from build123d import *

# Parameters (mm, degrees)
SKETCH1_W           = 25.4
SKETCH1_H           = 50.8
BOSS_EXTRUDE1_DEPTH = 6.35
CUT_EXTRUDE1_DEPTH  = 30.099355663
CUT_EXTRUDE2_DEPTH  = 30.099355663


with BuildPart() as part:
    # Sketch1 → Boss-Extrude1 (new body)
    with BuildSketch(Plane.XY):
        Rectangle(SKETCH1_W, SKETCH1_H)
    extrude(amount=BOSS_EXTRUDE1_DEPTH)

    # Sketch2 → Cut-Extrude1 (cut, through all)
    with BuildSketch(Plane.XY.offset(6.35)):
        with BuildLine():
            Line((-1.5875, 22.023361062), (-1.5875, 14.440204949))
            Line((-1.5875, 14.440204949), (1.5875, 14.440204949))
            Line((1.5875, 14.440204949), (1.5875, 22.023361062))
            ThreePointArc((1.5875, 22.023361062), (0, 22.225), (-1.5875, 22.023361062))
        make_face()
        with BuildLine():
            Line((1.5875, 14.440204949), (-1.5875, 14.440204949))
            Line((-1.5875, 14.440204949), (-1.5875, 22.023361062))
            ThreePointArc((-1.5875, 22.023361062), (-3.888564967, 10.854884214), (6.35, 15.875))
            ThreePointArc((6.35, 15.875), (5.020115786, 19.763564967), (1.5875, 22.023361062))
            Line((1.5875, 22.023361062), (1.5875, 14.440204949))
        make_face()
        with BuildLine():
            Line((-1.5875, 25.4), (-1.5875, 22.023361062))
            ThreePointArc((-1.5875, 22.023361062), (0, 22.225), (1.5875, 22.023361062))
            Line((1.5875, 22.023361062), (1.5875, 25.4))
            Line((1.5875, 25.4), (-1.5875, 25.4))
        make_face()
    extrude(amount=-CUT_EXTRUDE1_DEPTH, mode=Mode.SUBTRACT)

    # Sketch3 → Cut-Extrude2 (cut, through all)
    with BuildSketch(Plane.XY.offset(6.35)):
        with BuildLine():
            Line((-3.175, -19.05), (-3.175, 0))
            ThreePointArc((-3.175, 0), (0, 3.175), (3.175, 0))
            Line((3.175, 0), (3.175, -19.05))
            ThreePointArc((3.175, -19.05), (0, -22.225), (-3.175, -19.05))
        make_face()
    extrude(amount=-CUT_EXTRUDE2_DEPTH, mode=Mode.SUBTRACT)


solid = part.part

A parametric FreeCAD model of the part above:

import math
import FreeCAD as App
import Part
import Sketcher
Q = App.Units.Quantity

doc = App.newDocument("Part")
body = doc.addObject("PartDesign::Body", "Body")

# Sketch on XY plane
sketch1 = body.newObject("Sketcher::SketchObject", "Sketch")
sketch1.AttachmentSupport = (doc.getObject("XY_Plane"), [""])
sketch1.MapMode = "FlatFace"
sketch1.addGeometry(Part.LineSegment(App.Vector(-12.7, 25.4, 0), App.Vector(-12.7, -25.4, 0)), False)
sketch1.addGeometry(Part.LineSegment(App.Vector(-12.7, -25.4, 0), App.Vector(12.7, -25.4, 0)), False)
sketch1.addGeometry(Part.LineSegment(App.Vector(12.7, -25.4, 0), App.Vector(12.7, 25.4, 0)), False)
sketch1.addGeometry(Part.LineSegment(App.Vector(12.7, 25.4, 0), App.Vector(-12.7, 25.4, 0)), False)
sketch1.addConstraint(Sketcher.Constraint("Coincident", 0, 2, 1, 1))
sketch1.addConstraint(Sketcher.Constraint("Coincident", 1, 2, 2, 1))
sketch1.addConstraint(Sketcher.Constraint("Coincident", 2, 2, 3, 1))
sketch1.addConstraint(Sketcher.Constraint("Coincident", 3, 2, 0, 1))
sketch1.addConstraint(Sketcher.Constraint("Vertical", 0))
sketch1.addConstraint(Sketcher.Constraint("Horizontal", 1))
sketch1.addConstraint(Sketcher.Constraint("Vertical", 2))
sketch1.addConstraint(Sketcher.Constraint("Horizontal", 3))
sketch1.addConstraint(Sketcher.Constraint("Symmetric", 0, 2, 2, 2, -1, 1))
sketch1.addConstraint(Sketcher.Constraint("DistanceX", 1, 1, 1, 2, Q("1 in")))
sketch1.addConstraint(Sketcher.Constraint("DistanceY", 0, 2, 0, 1, Q("2 in")))
pad1 = body.newObject("PartDesign::Pad", "Pad")
pad1.Profile = sketch1
pad1.Length = Q("0.25 in")

# Sketch on XY plane
sketch2 = body.newObject("Sketcher::SketchObject", "Sketch001")
sketch2.AttachmentSupport = (doc.getObject("XY_Plane"), [""])
sketch2.MapMode = "FlatFace"
sketch2.AttachmentOffset = App.Placement(App.Vector(0, 0, 0.25 * 25.4), App.Rotation())
sketch2.addGeometry(Part.ArcOfCircle(Part.Circle(App.Vector(0, 15.875, 0), App.Vector(0, 0, 1), 6.35), math.radians(104.477512), math.radians(360)), False)
sketch2.addGeometry(Part.ArcOfCircle(Part.Circle(App.Vector(0, 15.875, 0), App.Vector(0, 0, 1), 6.35), math.radians(0), math.radians(75.522488)), False)
sketch2.addGeometry(Part.LineSegment(App.Vector(1.5875, 22.023361, 0), App.Vector(1.5875, 25.4, 0)), False)
sketch2.addGeometry(Part.LineSegment(App.Vector(1.5875, 25.4, 0), App.Vector(-1.5875, 25.4, 0)), False)
sketch2.addGeometry(Part.LineSegment(App.Vector(-1.5875, 25.4, 0), App.Vector(-1.5875, 22.023361, 0)), False)
sketch2.addConstraint(Sketcher.Constraint("Tangent", 0, 2, 1, 1))
sketch2.addConstraint(Sketcher.Constraint("Coincident", 1, 2, 2, 1))
sketch2.addConstraint(Sketcher.Constraint("Coincident", 2, 2, 3, 1))
sketch2.addConstraint(Sketcher.Constraint("Coincident", 3, 2, 4, 1))
sketch2.addConstraint(Sketcher.Constraint("Coincident", 4, 2, 0, 1))
sketch2.addConstraint(Sketcher.Constraint("Vertical", 2))
sketch2.addConstraint(Sketcher.Constraint("Horizontal", 3))
sketch2.addConstraint(Sketcher.Constraint("Vertical", 4))
sketch2.addConstraint(Sketcher.Constraint("Equal", 0, 1))
sketch2.addConstraint(Sketcher.Constraint("Symmetric", 1, 2, 4, 2, -2))
sketch2.addConstraint(Sketcher.Constraint("Horizontal", 1, 3, 0, 2))
sketch2.addConstraint(Sketcher.Constraint("Radius", 0, Q("0.25 in")))
sketch2.addConstraint(Sketcher.Constraint("DistanceY", -1, 1, 2, 2, Q("1 in")))
sketch2.addConstraint(Sketcher.Constraint("DistanceX", 3, 2, 3, 1, Q("0.125 in")))
sketch2.addConstraint(Sketcher.Constraint("DistanceY", -1, 1, 0, 3, Q("0.625 in")))
pocket1 = body.newObject("PartDesign::Pocket", "Pocket")
pocket1.Profile = sketch2
pocket1.Type = "ThroughAll"

# Sketch on XY plane
sketch3 = body.newObject("Sketcher::SketchObject", "Sketch002")
sketch3.AttachmentSupport = (doc.getObject("XY_Plane"), [""])
sketch3.MapMode = "FlatFace"
sketch3.AttachmentOffset = App.Placement(App.Vector(0, 0, 0.25 * 25.4), App.Rotation())
sketch3.addGeometry(Part.LineSegment(App.Vector(-3.175, 0, 0), App.Vector(-3.175, -19.05, 0)), False)
sketch3.addGeometry(Part.ArcOfCircle(Part.Circle(App.Vector(0, -19.05, 0), App.Vector(0, 0, 1), 3.175), math.radians(180), math.radians(360)), False)
sketch3.addGeometry(Part.LineSegment(App.Vector(3.175, -19.05, 0), App.Vector(3.175, 0, 0)), False)
sketch3.addGeometry(Part.ArcOfCircle(Part.Circle(App.Vector(0, 0, 0), App.Vector(0, 0, 1), 3.175), math.radians(0), math.radians(180)), False)
sketch3.addConstraint(Sketcher.Constraint("Tangent", 0, 2, 1, 1))
sketch3.addConstraint(Sketcher.Constraint("Tangent", 1, 2, 2, 1))
sketch3.addConstraint(Sketcher.Constraint("Tangent", 2, 2, 3, 1))
sketch3.addConstraint(Sketcher.Constraint("Tangent", 3, 2, 0, 1))
sketch3.addConstraint(Sketcher.Constraint("Vertical", 0))
sketch3.addConstraint(Sketcher.Constraint("Vertical", 2))
sketch3.addConstraint(Sketcher.Constraint("Coincident", 3, 3, -1, 1))
sketch3.addConstraint(Sketcher.Constraint("Radius", 1, Q("0.125 in")))
sketch3.addConstraint(Sketcher.Constraint("DistanceY", 0, 2, 0, 1, Q("0.75 in")))
pocket2 = body.newObject("PartDesign::Pocket", "Pocket001")
pocket2.Profile = sketch3
pocket2.Type = "ThroughAll"

doc.recompute()
